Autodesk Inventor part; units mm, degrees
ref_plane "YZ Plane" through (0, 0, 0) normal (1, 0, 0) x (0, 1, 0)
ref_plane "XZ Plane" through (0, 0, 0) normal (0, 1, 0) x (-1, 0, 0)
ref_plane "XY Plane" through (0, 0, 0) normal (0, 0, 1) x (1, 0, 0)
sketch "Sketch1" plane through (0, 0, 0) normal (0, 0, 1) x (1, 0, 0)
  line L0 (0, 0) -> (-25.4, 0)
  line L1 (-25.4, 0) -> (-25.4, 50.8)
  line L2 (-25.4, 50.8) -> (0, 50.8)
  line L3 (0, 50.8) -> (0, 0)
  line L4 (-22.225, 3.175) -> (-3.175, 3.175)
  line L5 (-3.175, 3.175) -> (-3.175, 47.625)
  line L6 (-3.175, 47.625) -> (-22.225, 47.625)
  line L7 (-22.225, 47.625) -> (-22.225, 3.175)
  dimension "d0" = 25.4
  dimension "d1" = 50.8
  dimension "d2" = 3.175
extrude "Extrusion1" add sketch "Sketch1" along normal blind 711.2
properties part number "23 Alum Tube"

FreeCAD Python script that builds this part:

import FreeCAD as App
import Part
import Sketcher
Q = App.Units.Quantity


def add_polygon(sketch, points):
    """Adds a closed chain of lines whose ends are joined by coincident constraints."""
    first, n = sketch.GeometryCount, len(points)
    for a, b in zip(points, points[1:] + points[:1]):
        sketch.addGeometry(Part.LineSegment(App.Vector(*a, 0), App.Vector(*b, 0)), False)
    for i in range(n):
        sketch.addConstraint(Sketcher.Constraint("Coincident", first + i, 2, first + (i + 1) % n, 1))

doc = App.newDocument("Part")
body = doc.addObject("PartDesign::Body", "Body")

sketch1 = body.newObject("Sketcher::SketchObject", "Sketch")
sketch1.AttachmentSupport = (doc.getObject("XY_Plane"), [""])
sketch1.MapMode = "FlatFace"
add_polygon(sketch1, [(-25.4, 0), (0, 0), (0, 50.8), (-25.4, 50.8)])
add_polygon(sketch1, [(-3.175, 3.175), (-22.225, 3.175), (-22.225, 47.625), (-3.175, 47.625)])
sketch1.addConstraint([
    Sketcher.Constraint("Horizontal", 0),
    Sketcher.Constraint("Vertical", 1),
    Sketcher.Constraint("Horizontal", 2),
    Sketcher.Constraint("Vertical", 3),
    Sketcher.Constraint("Horizontal", 4),
    Sketcher.Constraint("Vertical", 5),
    Sketcher.Constraint("Horizontal", 6),
    Sketcher.Constraint("Vertical", 7),
    Sketcher.Constraint("Coincident", 0, 2, -1, 1),
    Sketcher.Constraint("DistanceX", 0, 1, 0, 2, Q("1 in")),
    Sketcher.Constraint("DistanceY", 1, 1, 1, 2, Q("2 in")),
    Sketcher.Constraint("DistanceY", -1, 1, 4, 2, Q("0.125 in")),
    Sketcher.Constraint("DistanceX", 6, 2, -1, 1, Q("0.125 in")),
    Sketcher.Constraint("DistanceX", 3, 2, 4, 2, Q("0.125 in")),
    Sketcher.Constraint("DistanceY", 5, 2, 2, 2, Q("0.125 in")),
])
pad1 = body.newObject("PartDesign::Pad", "Pad")
pad1.Profile = sketch1
pad1.Length = Q("28 in")

doc.recompute()
